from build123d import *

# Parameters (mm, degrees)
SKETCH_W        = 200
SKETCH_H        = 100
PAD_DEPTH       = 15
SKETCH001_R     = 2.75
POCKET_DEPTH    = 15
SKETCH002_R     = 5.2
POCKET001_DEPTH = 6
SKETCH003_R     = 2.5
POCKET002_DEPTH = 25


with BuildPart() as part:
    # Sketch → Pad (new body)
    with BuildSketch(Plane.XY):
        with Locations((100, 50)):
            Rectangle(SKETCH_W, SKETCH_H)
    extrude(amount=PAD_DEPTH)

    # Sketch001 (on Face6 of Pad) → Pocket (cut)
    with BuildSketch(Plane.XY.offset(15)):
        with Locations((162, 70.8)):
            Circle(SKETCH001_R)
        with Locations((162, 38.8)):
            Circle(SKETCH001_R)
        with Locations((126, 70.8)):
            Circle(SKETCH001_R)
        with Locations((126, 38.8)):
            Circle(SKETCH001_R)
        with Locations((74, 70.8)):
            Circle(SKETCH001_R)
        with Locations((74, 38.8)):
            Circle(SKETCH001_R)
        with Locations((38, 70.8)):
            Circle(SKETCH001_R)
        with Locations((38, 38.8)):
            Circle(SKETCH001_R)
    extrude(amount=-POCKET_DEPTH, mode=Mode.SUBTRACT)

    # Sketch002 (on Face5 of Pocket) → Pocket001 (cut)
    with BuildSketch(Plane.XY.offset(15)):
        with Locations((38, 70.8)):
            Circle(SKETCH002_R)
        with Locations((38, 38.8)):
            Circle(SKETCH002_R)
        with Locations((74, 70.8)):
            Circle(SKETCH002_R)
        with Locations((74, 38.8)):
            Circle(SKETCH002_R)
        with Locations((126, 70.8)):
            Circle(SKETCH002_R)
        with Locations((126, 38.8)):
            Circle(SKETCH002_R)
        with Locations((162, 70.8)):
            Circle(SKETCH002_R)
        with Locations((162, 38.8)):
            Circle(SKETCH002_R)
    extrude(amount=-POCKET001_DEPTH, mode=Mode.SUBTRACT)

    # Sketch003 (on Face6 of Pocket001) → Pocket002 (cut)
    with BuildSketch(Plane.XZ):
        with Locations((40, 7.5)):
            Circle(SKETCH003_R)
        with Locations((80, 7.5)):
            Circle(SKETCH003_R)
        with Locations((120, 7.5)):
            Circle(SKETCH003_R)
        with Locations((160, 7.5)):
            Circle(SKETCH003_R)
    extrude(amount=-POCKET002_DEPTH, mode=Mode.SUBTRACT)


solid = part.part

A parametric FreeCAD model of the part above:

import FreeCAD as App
import Part
import Sketcher
Q = App.Units.Quantity


def add_polygon(sketch, points):
    """Adds a closed chain of lines whose ends are joined by coincident constraints."""
    first, n = sketch.GeometryCount, len(points)
    for a, b in zip(points, points[1:] + points[:1]):
        sketch.addGeometry(Part.LineSegment(App.Vector(*a, 0), App.Vector(*b, 0)), False)
    for i in range(n):
        sketch.addConstraint(Sketcher.Constraint("Coincident", first + i, 2, first + (i + 1) % n, 1))

doc = App.newDocument("Part")
body = doc.addObject("PartDesign::Body", "Body")

# Sketch on XY plane
sketch1 = body.newObject("Sketcher::SketchObject", "Sketch")
sketch1.AttachmentSupport = (doc.getObject("XY_Plane"), [""])
sketch1.MapMode = "FlatFace"
add_polygon(sketch1, [(0, 100), (0, 0), (200, 0), (200, 100)])  # lines 0-3
sketch1.addConstraint([
    Sketcher.Constraint("Vertical", 0),
    Sketcher.Constraint("Horizontal", 1),
    Sketcher.Constraint("Vertical", 2),
    Sketcher.Constraint("Horizontal", 3),
    Sketcher.Constraint("Coincident", 0, 2, -1, 1),
    Sketcher.Constraint("DistanceX", 1, 1, 1, 2, Q("200 mm")),
    Sketcher.Constraint("DistanceY", 0, 2, 0, 1, Q("100 mm")),
])
pad1 = body.newObject("PartDesign::Pad", "Pad")
pad1.Profile = sketch1
pad1.Length = 15

# Sketch on XY plane
sketch2 = body.newObject("Sketcher::SketchObject", "Sketch001")
sketch2.AttachmentSupport = (doc.getObject("XY_Plane"), [""])
sketch2.MapMode = "FlatFace"
sketch2.AttachmentOffset = App.Placement(App.Vector(0, 0, 15), App.Rotation())
sketch2.addGeometry([
    Part.Circle(App.Vector(162, 70.8, 0), App.Vector(0, 0, 1), 2.8),  # 0
    Part.Circle(App.Vector(162, 38.8, 0), App.Vector(0, 0, 1), 2.8),  # 1
    Part.Circle(App.Vector(126, 70.8, 0), App.Vector(0, 0, 1), 2.8),  # 2
    Part.Circle(App.Vector(126, 38.8, 0), App.Vector(0, 0, 1), 2.8),  # 3
    Part.Circle(App.Vector(74, 70.8, 0), App.Vector(0, 0, 1), 2.8),  # 4
    Part.Circle(App.Vector(74, 38.8, 0), App.Vector(0, 0, 1), 2.8),  # 5
    Part.Circle(App.Vector(38, 70.8, 0), App.Vector(0, 0, 1), 2.8),  # 6
    Part.Circle(App.Vector(38, 38.8, 0), App.Vector(0, 0, 1), 2.8),  # 7
], False)
sketch2.addConstraint([
    Sketcher.Constraint("Equal", 0, 1),
    Sketcher.Constraint("Equal", 1, 2),
    Sketcher.Constraint("Equal", 2, 3),
    Sketcher.Constraint("Equal", 3, 4),
    Sketcher.Constraint("Equal", 4, 5),
    Sketcher.Constraint("Equal", 5, 6),
    Sketcher.Constraint("Equal", 6, 7),
    Sketcher.Constraint("Horizontal", 0, 3, 2, 3),
    Sketcher.Constraint("Horizontal", 1, 3, 3, 3),
    Sketcher.Constraint("Horizontal", 2, 3, 4, 3),
    Sketcher.Constraint("Horizontal", 3, 3, 5, 3),
    Sketcher.Constraint("Horizontal", 4, 3, 6, 3),
    Sketcher.Constraint("Horizontal", 5, 3, 7, 3),
    Sketcher.Constraint("Vertical", 0, 3, 1, 3),
    Sketcher.Constraint("Vertical", 2, 3, 3, 3),
    Sketcher.Constraint("Vertical", 4, 3, 5, 3),
    Sketcher.Constraint("Vertical", 6, 3, 7, 3),
    Sketcher.Constraint("Diameter", 0, Q("5.5 mm")),
    Sketcher.Constraint("DistanceX", -1, 1, 0, 3, Q("162 mm")),
    Sketcher.Constraint("DistanceX", -1, 1, 2, 3, Q("126 mm")),
    Sketcher.Constraint("DistanceX", -1, 1, 4, 3, Q("74 mm")),
    Sketcher.Constraint("DistanceX", -1, 1, 6, 3, Q("38 mm")),
    Sketcher.Constraint("DistanceY", 1, 3, 0, 3, Q("32 mm")),
    Sketcher.Constraint("DistanceY", -1, 1, 0, 3, Q("70.8 mm")),
])
pocket1 = body.newObject("PartDesign::Pocket", "Pocket")
pocket1.Profile = sketch2
pocket1.Length = 15

# Sketch on XY plane
sketch3 = body.newObject("Sketcher::SketchObject", "Sketch002")
sketch3.AttachmentSupport = (doc.getObject("XY_Plane"), [""])
sketch3.MapMode = "FlatFace"
sketch3.AttachmentOffset = App.Placement(App.Vector(0, 0, 15), App.Rotation())
sketch3.addGeometry([
    Part.Circle(App.Vector(38, 71, 0), App.Vector(0, 0, 1), 5),  # 0
    Part.Circle(App.Vector(38, 39, 0), App.Vector(0, 0, 1), 5),  # 1
    Part.Circle(App.Vector(74, 71, 0), App.Vector(0, 0, 1), 5),  # 2
    Part.Circle(App.Vector(74, 39, 0), App.Vector(0, 0, 1), 5),  # 3
    Part.Circle(App.Vector(126, 71, 0), App.Vector(0, 0, 1), 5),  # 4
    Part.Circle(App.Vector(126, 39, 0), App.Vector(0, 0, 1), 5),  # 5
    Part.Circle(App.Vector(162, 71, 0), App.Vector(0, 0, 1), 5),  # 6
    Part.Circle(App.Vector(162, 39, 0), App.Vector(0, 0, 1), 5),  # 7
], False)
sketch3.addConstraint([
    Sketcher.Constraint("Equal", 0, 1),
    Sketcher.Constraint("Equal", 1, 2),
    Sketcher.Constraint("Equal", 2, 3),
    Sketcher.Constraint("Equal", 3, 4),
    Sketcher.Constraint("Equal", 4, 5),
    Sketcher.Constraint("Equal", 5, 6),
    Sketcher.Constraint("Equal", 6, 7),
    Sketcher.Constraint("Horizontal", 0, 3, 2, 3),
    Sketcher.Constraint("Horizontal", 1, 3, 3, 3),
    Sketcher.Constraint("Horizontal", 2, 3, 4, 3),
    Sketcher.Constraint("Horizontal", 3, 3, 5, 3),
    Sketcher.Constraint("Horizontal", 4, 3, 6, 3),
    Sketcher.Constraint("Horizontal", 5, 3, 7, 3),
    Sketcher.Constraint("Vertical", 0, 3, 1, 3),
    Sketcher.Constraint("Vertical", 2, 3, 3, 3),
    Sketcher.Constraint("Vertical", 4, 3, 5, 3),
    Sketcher.Constraint("Vertical", 6, 3, 7, 3),
    Sketcher.Constraint("Diameter", 0, Q("10.4 mm")),
    Sketcher.Constraint("DistanceX", -1, 1, 0, 3, Q("38 mm")),
    Sketcher.Constraint("DistanceX", -1, 1, 2, 3, Q("74 mm")),
    Sketcher.Constraint("DistanceX", -1, 1, 4, 3, Q("126 mm")),
    Sketcher.Constraint("DistanceX", -1, 1, 6, 3, Q("162 mm")),
    Sketcher.Constraint("DistanceY", 1, 3, 0, 3, Q("32 mm")),
    Sketcher.Constraint("DistanceY", -1, 1, 0, 3, Q("70.8 mm")),
])
pocket2 = body.newObject("PartDesign::Pocket", "Pocket001")
pocket2.Profile = sketch3
pocket2.Length = 6

# Sketch on XZ plane
sketch4 = body.newObject("Sketcher::SketchObject", "Sketch003")
sketch4.AttachmentSupport = (doc.getObject("XZ_Plane"), [""])
sketch4.MapMode = "FlatFace"
sketch4.addGeometry([
    Part.Circle(App.Vector(40, 7.5, 0), App.Vector(0, 0, 1), 2.5),
    Part.Circle(App.Vector(80, 7.5, 0), App.Vector(0, 0, 1), 2.5),
    Part.Circle(App.Vector(120, 7.5, 0), App.Vector(0, 0, 1), 2.5),
    Part.Circle(App.Vector(160, 7.5, 0), App.Vector(0, 0, 1), 2.5),
], False)
sketch4.addConstraint([
    Sketcher.Constraint("Equal", 0, 1),
    Sketcher.Constraint("Equal", 1, 2),
    Sketcher.Constraint("Equal", 2, 3),
    Sketcher.Constraint("Horizontal", 0, 3, 1, 3),
    Sketcher.Constraint("Horizontal", 1, 3, 2, 3),
    Sketcher.Constraint("Horizontal", 2, 3, 3, 3),
    Sketcher.Constraint("Diameter", 0, Q("5 mm")),
    Sketcher.Constraint("DistanceX", -1, 1, 0, 3, Q("40 mm")),
    Sketcher.Constraint("DistanceX", -1, 1, 1, 3, Q("80 mm")),
    Sketcher.Constraint("DistanceX", -1, 1, 2, 3, Q("120 mm")),
    Sketcher.Constraint("DistanceX", -1, 1, 3, 3, Q("160 mm")),
    Sketcher.Constraint("DistanceY", -1, 1, 0, 3, Q("7.5 mm")),
])
pocket3 = body.newObject("PartDesign::Pocket", "Pocket002")
pocket3.Profile = sketch4
pocket3.Length = 25

doc.recompute()
